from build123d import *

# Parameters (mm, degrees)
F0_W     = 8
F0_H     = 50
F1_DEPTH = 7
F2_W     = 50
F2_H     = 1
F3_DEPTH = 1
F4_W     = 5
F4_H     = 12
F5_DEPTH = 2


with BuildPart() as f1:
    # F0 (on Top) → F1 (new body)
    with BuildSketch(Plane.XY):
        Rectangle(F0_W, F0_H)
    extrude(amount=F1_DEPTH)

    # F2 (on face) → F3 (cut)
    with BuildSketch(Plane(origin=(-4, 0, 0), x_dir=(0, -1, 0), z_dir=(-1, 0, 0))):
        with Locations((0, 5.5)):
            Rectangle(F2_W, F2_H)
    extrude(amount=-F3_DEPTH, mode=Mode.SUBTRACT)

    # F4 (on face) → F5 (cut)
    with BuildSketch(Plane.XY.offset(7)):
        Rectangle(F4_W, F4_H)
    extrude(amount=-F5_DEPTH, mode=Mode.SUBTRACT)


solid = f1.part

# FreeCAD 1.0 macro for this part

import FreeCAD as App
import Part
import Sketcher
Q = App.Units.Quantity

doc = App.newDocument("Part")
params = doc.addObject("Spreadsheet::Sheet", "Params")
for row, (alias, value) in enumerate([
    ("sketch1_width", "8 mm"),
    ("sketch1_height", "50 mm"),
    ("pad1_length", "7 mm"),
    ("sketch2_width", "50 mm"),
    ("sketch2_height", "1 mm"),
    ("pocket1_length", "1 mm"),
    ("sketch3_width", "5 mm"),
    ("sketch3_height", "12 mm"),
    ("pocket2_length", "2 mm"),
], start=1):
    params.set(f"A{row}", alias)
    params.set(f"B{row}", "=" + value)
    params.setAlias(f"B{row}", alias)

body = doc.addObject("PartDesign::Body", "Body")

sketch1 = body.newObject("Sketcher::SketchObject", "Sketch")
sketch1.AttachmentSupport = (doc.getObject("XY_Plane"), [""])
sketch1.MapMode = "FlatFace"
sketch1.addGeometry([
    Part.LineSegment(App.Vector(-4, 25, 0), App.Vector(-4, -25, 0)),
    Part.LineSegment(App.Vector(-4, -25, 0), App.Vector(4, -25, 0)),
    Part.LineSegment(App.Vector(4, -25, 0), App.Vector(4, 25, 0)),
    Part.LineSegment(App.Vector(4, 25, 0), App.Vector(-4, 25, 0)),
], False)
sketch1.addConstraint([
    Sketcher.Constraint("Coincident", 0, 2, 1, 1),
    Sketcher.Constraint("Coincident", 1, 2, 2, 1),
    Sketcher.Constraint("Coincident", 2, 2, 3, 1),
    Sketcher.Constraint("Coincident", 3, 2, 0, 1),
    Sketcher.Constraint("Vertical", 0),
    Sketcher.Constraint("Horizontal", 1),
    Sketcher.Constraint("Vertical", 2),
    Sketcher.Constraint("Horizontal", 3),
    Sketcher.Constraint("Symmetric", 0, 2, 2, 2, -1, 1),
    Sketcher.Constraint("DistanceX", 1, 1, 1, 2, Q("8 mm")),
    Sketcher.Constraint("DistanceY", 0, 2, 0, 1, Q("50 mm")),
])
sketch1.setExpression("Constraints[9]", "Params.sketch1_width")
sketch1.setExpression("Constraints[10]", "Params.sketch1_height")
pad1 = body.newObject("PartDesign::Pad", "Pad")
pad1.Profile = sketch1
pad1.setExpression("Length", "Params.pad1_length")

sketch2 = body.newObject("Sketcher::SketchObject", "Sketch001")
sketch2.AttachmentSupport = (doc.getObject("YZ_Plane"), [""])
sketch2.MapMode = "FlatFace"
sketch2.AttachmentOffset = App.Placement(App.Vector(0, 0, -4), App.Rotation())
sketch2.addGeometry([
    Part.LineSegment(App.Vector(25, 6, 0), App.Vector(25, 5, 0)),
    Part.LineSegment(App.Vector(25, 5, 0), App.Vector(-25, 5, 0)),
    Part.LineSegment(App.Vector(-25, 5, 0), App.Vector(-25, 6, 0)),
    Part.LineSegment(App.Vector(-25, 6, 0), App.Vector(25, 6, 0)),
], False)
sketch2.addConstraint([
    Sketcher.Constraint("Coincident", 0, 2, 1, 1),
    Sketcher.Constraint("Coincident", 1, 2, 2, 1),
    Sketcher.Constraint("Coincident", 2, 2, 3, 1),
    Sketcher.Constraint("Coincident", 3, 2, 0, 1),
    Sketcher.Constraint("Vertical", 0),
    Sketcher.Constraint("Horizontal", 1),
    Sketcher.Constraint("Vertical", 2),
    Sketcher.Constraint("Horizontal", 3),
    Sketcher.Constraint("DistanceX", 1, 2, 1, 1, Q("50 mm")),
    Sketcher.Constraint("DistanceY", 0, 2, 0, 1, Q("1 mm")),
    Sketcher.Constraint("DistanceX", -1, 1, 0, 2, Q("25 mm")),
    Sketcher.Constraint("DistanceY", -1, 1, 0, 2, Q("5 mm")),
])
sketch2.setExpression("Constraints[8]", "Params.sketch2_width")
sketch2.setExpression("Constraints[9]", "Params.sketch2_height")
pocket1 = body.newObject("PartDesign::Pocket", "Pocket")
pocket1.Profile = sketch2
pocket1.setExpression("Length", "Params.pocket1_length")
pocket1.Reversed = True

sketch3 = body.newObject("Sketcher::SketchObject", "Sketch002")
sketch3.AttachmentSupport = (doc.getObject("XY_Plane"), [""])
sketch3.MapMode = "FlatFace"
sketch3.AttachmentOffset = App.Placement(App.Vector(0, 0, 7), App.Rotation())
sketch3.addGeometry([
    Part.LineSegment(App.Vector(-2, 6, 0), App.Vector(-2, -6, 0)),
    Part.LineSegment(App.Vector(-2, -6, 0), App.Vector(2, -6, 0)),
    Part.LineSegment(App.Vector(2, -6, 0), App.Vector(2, 6, 0)),
    Part.LineSegment(App.Vector(2, 6, 0), App.Vector(-2, 6, 0)),
], False)
sketch3.addConstraint([
    Sketcher.Constraint("Coincident", 0, 2, 1, 1),
    Sketcher.Constraint("Coincident", 1, 2, 2, 1),
    Sketcher.Constraint("Coincident", 2, 2, 3, 1),
    Sketcher.Constraint("Coincident", 3, 2, 0, 1),
    Sketcher.Constraint("Vertical", 0),
    Sketcher.Constraint("Horizontal", 1),
    Sketcher.Constraint("Vertical", 2),
    Sketcher.Constraint("Horizontal", 3),
    Sketcher.Constraint("Symmetric", 0, 2, 2, 2, -1, 1),
    Sketcher.Constraint("DistanceX", 1, 1, 1, 2, Q("5 mm")),
    Sketcher.Constraint("DistanceY", 0, 2, 0, 1, Q("12 mm")),
])
sketch3.setExpression("Constraints[9]", "Params.sketch3_width")
sketch3.setExpression("Constraints[10]", "Params.sketch3_height")
pocket2 = body.newObject("PartDesign::Pocket", "Pocket001")
pocket2.Profile = sketch3
pocket2.setExpression("Length", "Params.pocket2_length")

doc.recompute()
